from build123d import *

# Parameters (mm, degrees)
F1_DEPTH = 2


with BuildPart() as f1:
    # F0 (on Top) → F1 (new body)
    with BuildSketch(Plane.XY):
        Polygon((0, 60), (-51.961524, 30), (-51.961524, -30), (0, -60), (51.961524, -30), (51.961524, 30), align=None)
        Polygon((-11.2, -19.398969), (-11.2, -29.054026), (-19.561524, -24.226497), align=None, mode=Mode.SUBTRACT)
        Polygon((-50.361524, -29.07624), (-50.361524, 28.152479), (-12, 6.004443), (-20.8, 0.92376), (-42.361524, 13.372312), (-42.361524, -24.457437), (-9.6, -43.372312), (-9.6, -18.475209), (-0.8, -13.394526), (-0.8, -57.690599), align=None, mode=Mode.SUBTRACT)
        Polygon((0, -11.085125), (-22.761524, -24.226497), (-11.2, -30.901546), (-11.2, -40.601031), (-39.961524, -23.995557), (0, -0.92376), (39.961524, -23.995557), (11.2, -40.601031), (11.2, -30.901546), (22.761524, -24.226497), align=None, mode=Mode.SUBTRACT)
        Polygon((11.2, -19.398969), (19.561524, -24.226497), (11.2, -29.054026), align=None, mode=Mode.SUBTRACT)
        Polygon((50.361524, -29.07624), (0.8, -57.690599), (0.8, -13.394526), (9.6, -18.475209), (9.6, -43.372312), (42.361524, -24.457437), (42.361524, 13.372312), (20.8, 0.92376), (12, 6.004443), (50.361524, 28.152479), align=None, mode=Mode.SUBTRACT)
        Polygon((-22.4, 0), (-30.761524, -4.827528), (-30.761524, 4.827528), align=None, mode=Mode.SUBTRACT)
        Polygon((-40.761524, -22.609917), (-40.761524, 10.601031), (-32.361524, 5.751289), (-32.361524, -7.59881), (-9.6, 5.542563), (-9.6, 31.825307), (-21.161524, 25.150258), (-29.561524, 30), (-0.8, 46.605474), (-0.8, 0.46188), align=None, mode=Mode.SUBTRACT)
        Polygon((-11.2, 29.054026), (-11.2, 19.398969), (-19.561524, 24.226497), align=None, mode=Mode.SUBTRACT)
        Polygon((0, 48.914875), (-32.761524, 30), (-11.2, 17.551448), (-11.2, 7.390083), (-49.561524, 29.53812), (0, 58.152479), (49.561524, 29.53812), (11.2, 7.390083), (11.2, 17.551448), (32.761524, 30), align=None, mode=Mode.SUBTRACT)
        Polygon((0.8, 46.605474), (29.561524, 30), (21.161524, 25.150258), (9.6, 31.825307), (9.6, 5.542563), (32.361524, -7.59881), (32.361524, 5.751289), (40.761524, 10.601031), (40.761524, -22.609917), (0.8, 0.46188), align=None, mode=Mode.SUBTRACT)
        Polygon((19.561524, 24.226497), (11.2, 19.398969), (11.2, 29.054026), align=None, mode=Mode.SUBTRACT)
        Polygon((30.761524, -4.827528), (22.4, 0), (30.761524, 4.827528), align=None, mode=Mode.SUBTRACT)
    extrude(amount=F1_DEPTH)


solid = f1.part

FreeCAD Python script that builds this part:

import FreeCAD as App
import Part
import Sketcher
Q = App.Units.Quantity

doc = App.newDocument("Part")
params = doc.addObject("Spreadsheet::Sheet", "Params")
for row, (alias, value) in enumerate([
    ("sketch1_height", "60 mm"),
    ("sketch1_length", "60 mm"),
    ("pad1_length", "2 mm"),
], start=1):
    params.set(f"A{row}", alias)
    params.set(f"B{row}", "=" + value)
    params.setAlias(f"B{row}", alias)

body = doc.addObject("PartDesign::Body", "Body")

# Sketch on XY plane
sketch1 = body.newObject("Sketcher::SketchObject", "Sketch")
sketch1.AttachmentSupport = (doc.getObject("XY_Plane"), [""])
sketch1.MapMode = "FlatFace"
sketch1.addGeometry([
    Part.LineSegment(App.Vector(0, 60, 0), App.Vector(-52, 30, 0)),  # 0
    Part.LineSegment(App.Vector(-52, 30, 0), App.Vector(-52, -30, 0)),  # 1
    Part.LineSegment(App.Vector(-52, -30, 0), App.Vector(0, -60, 0)),  # 2
    Part.LineSegment(App.Vector(0, -60, 0), App.Vector(52, -30, 0)),  # 3
    Part.LineSegment(App.Vector(52, -30, 0), App.Vector(52, 30, 0)),  # 4
    Part.LineSegment(App.Vector(52, 30, 0), App.Vector(0, 60, 0)),  # 5
    Part.LineSegment(App.Vector(-1, -58, 0), App.Vector(-50, -29, 0)),  # 6
    Part.LineSegment(App.Vector(-50, -29, 0), App.Vector(-50, 28, 0)),  # 7
    Part.LineSegment(App.Vector(-50, 28, 0), App.Vector(-12, 6, 0)),  # 8
    Part.LineSegment(App.Vector(-12, 6, 0), App.Vector(-21, 1, 0)),  # 9
    Part.LineSegment(App.Vector(-21, 1, 0), App.Vector(-42, 13, 0)),  # 10
    Part.LineSegment(App.Vector(-42, 13, 0), App.Vector(-42, -24, 0)),  # 11
    Part.LineSegment(App.Vector(-42, -24, 0), App.Vector(-10, -43, 0)),  # 12
    Part.LineSegment(App.Vector(-10, -43, 0), App.Vector(-10, -18, 0)),  # 13
    Part.LineSegment(App.Vector(-10, -18, 0), App.Vector(-1, -13, 0)),  # 14
    Part.LineSegment(App.Vector(-1, -13, 0), App.Vector(-1, -58, 0)),  # 15
    Part.LineSegment(App.Vector(-31, 5, 0), App.Vector(-22, 0, 0)),  # 16
    Part.LineSegment(App.Vector(-22, 0, 0), App.Vector(-31, -5, 0)),  # 17
    Part.LineSegment(App.Vector(-31, -5, 0), App.Vector(-31, 5, 0)),  # 18
    Part.LineSegment(App.Vector(-20, -24, 0), App.Vector(-11, -19, 0)),  # 19
    Part.LineSegment(App.Vector(-11, -19, 0), App.Vector(-11, -29, 0)),  # 20
    Part.LineSegment(App.Vector(-11, -29, 0), App.Vector(-20, -24, 0)),  # 21
    Part.LineSegment(App.Vector(23, -24, 0), App.Vector(0, -11, 0)),  # 22
    Part.LineSegment(App.Vector(0, -11, 0), App.Vector(-23, -24, 0)),  # 23
    Part.LineSegment(App.Vector(-23, -24, 0), App.Vector(-11, -31, 0)),  # 24
    Part.LineSegment(App.Vector(-11, -31, 0), App.Vector(-11, -41, 0)),  # 25
    Part.LineSegment(App.Vector(-11, -41, 0), App.Vector(-40, -24, 0)),  # 26
    Part.LineSegment(App.Vector(-40, -24, 0), App.Vector(0, -1, 0)),  # 27
    Part.LineSegment(App.Vector(0, -1, 0), App.Vector(40, -24, 0)),  # 28
    Part.LineSegment(App.Vector(40, -24, 0), App.Vector(11, -41, 0)),  # 29
    Part.LineSegment(App.Vector(11, -41, 0), App.Vector(11, -31, 0)),  # 30
    Part.LineSegment(App.Vector(11, -31, 0), App.Vector(23, -24, 0)),  # 31
    Part.LineSegment(App.Vector(11, -29, 0), App.Vector(11, -19, 0)),  # 32
    Part.LineSegment(App.Vector(11, -19, 0), App.Vector(20, -24, 0)),  # 33
    Part.LineSegment(App.Vector(20, -24, 0), App.Vector(11, -29, 0)),  # 34
    Part.LineSegment(App.Vector(50, 28, 0), App.Vector(50, -29, 0)),  # 35
    Part.LineSegment(App.Vector(50, -29, 0), App.Vector(1, -58, 0)),  # 36
    Part.LineSegment(App.Vector(1, -58, 0), App.Vector(1, -13, 0)),  # 37
    Part.LineSegment(App.Vector(1, -13, 0), App.Vector(10, -18, 0)),  # 38
    Part.LineSegment(App.Vector(10, -18, 0), App.Vector(10, -43, 0)),  # 39
    Part.LineSegment(App.Vector(10, -43, 0), App.Vector(42, -24, 0)),  # 40
    Part.LineSegment(App.Vector(42, -24, 0), App.Vector(42, 13, 0)),  # 41
    Part.LineSegment(App.Vector(42, 13, 0), App.Vector(21, 1, 0)),  # 42
    Part.LineSegment(App.Vector(21, 1, 0), App.Vector(12, 6, 0)),  # 43
    Part.LineSegment(App.Vector(12, 6, 0), App.Vector(50, 28, 0)),  # 44
    Part.LineSegment(App.Vector(31, 5, 0), App.Vector(31, -5, 0)),  # 45
    Part.LineSegment(App.Vector(31, -5, 0), App.Vector(22, 0, 0)),  # 46
    Part.LineSegment(App.Vector(22, 0, 0), App.Vector(31, 5, 0)),  # 47
    Part.LineSegment(App.Vector(-1, 0, 0), App.Vector(-41, -23, 0)),  # 48
    Part.LineSegment(App.Vector(-41, -23, 0), App.Vector(-41, 11, 0)),  # 49
    Part.LineSegment(App.Vector(-41, 11, 0), App.Vector(-32, 6, 0)),  # 50
    Part.LineSegment(App.Vector(-32, 6, 0), App.Vector(-32, -8, 0)),  # 51
    Part.LineSegment(App.Vector(-32, -8, 0), App.Vector(-10, 6, 0)),  # 52
    Part.LineSegment(App.Vector(-10, 6, 0), App.Vector(-10, 32, 0)),  # 53
    Part.LineSegment(App.Vector(-10, 32, 0), App.Vector(-21, 25, 0)),  # 54
    Part.LineSegment(App.Vector(-21, 25, 0), App.Vector(-30, 30, 0)),  # 55
    Part.LineSegment(App.Vector(-30, 30, 0), App.Vector(-1, 47, 0)),  # 56
    Part.LineSegment(App.Vector(-1, 47, 0), App.Vector(-1, 0, 0)),  # 57
    Part.LineSegment(App.Vector(-20, 24, 0), App.Vector(-11, 29, 0)),  # 58
    Part.LineSegment(App.Vector(-11, 29, 0), App.Vector(-11, 19, 0)),  # 59
    Part.LineSegment(App.Vector(-11, 19, 0), App.Vector(-20, 24, 0)),  # 60
    Part.LineSegment(App.Vector(1, 0, 0), App.Vector(1, 47, 0)),  # 61
    Part.LineSegment(App.Vector(1, 47, 0), App.Vector(30, 30, 0)),  # 62
    Part.LineSegment(App.Vector(30, 30, 0), App.Vector(21, 25, 0)),  # 63
    Part.LineSegment(App.Vector(21, 25, 0), App.Vector(10, 32, 0)),  # 64
    Part.LineSegment(App.Vector(10, 32, 0), App.Vector(10, 6, 0)),  # 65
    Part.LineSegment(App.Vector(10, 6, 0), App.Vector(32, -8, 0)),  # 66
    Part.LineSegment(App.Vector(32, -8, 0), App.Vector(32, 6, 0)),  # 67
    Part.LineSegment(App.Vector(32, 6, 0), App.Vector(41, 11, 0)),  # 68
    Part.LineSegment(App.Vector(41, 11, 0), App.Vector(41, -23, 0)),  # 69
    Part.LineSegment(App.Vector(41, -23, 0), App.Vector(1, 0, 0)),  # 70
    Part.LineSegment(App.Vector(11, 29, 0), App.Vector(20, 24, 0)),  # 71
    Part.LineSegment(App.Vector(20, 24, 0), App.Vector(11, 19, 0)),  # 72
    Part.LineSegment(App.Vector(11, 19, 0), App.Vector(11, 29, 0)),  # 73
    Part.LineSegment(App.Vector(33, 30, 0), App.Vector(0, 49, 0)),  # 74
    Part.LineSegment(App.Vector(0, 49, 0), App.Vector(-33, 30, 0)),  # 75
    Part.LineSegment(App.Vector(-33, 30, 0), App.Vector(-11, 18, 0)),  # 76
    Part.LineSegment(App.Vector(-11, 18, 0), App.Vector(-11, 7, 0)),  # 77
    Part.LineSegment(App.Vector(-11, 7, 0), App.Vector(-50, 30, 0)),  # 78
    Part.LineSegment(App.Vector(-50, 30, 0), App.Vector(0, 58, 0)),  # 79
    Part.LineSegment(App.Vector(0, 58, 0), App.Vector(50, 30, 0)),  # 80
    Part.LineSegment(App.Vector(50, 30, 0), App.Vector(11, 7, 0)),  # 81
    Part.LineSegment(App.Vector(11, 7, 0), App.Vector(11, 18, 0)),  # 82
    Part.LineSegment(App.Vector(11, 18, 0), App.Vector(33, 30, 0)),  # 83
], False)
sketch1.addConstraint([
    Sketcher.Constraint("Coincident", 0, 2, 1, 1),
    Sketcher.Constraint("Coincident", 1, 2, 2, 1),
    Sketcher.Constraint("Coincident", 2, 2, 3, 1),
    Sketcher.Constraint("Coincident", 3, 2, 4, 1),
    Sketcher.Constraint("Coincident", 4, 2, 5, 1),
    Sketcher.Constraint("Coincident", 5, 2, 0, 1),
    Sketcher.Constraint("Coincident", 6, 2, 7, 1),
    Sketcher.Constraint("Coincident", 7, 2, 8, 1),
    Sketcher.Constraint("Coincident", 8, 2, 9, 1),
    Sketcher.Constraint("Coincident", 9, 2, 10, 1),
    Sketcher.Constraint("Coincident", 10, 2, 11, 1),
    Sketcher.Constraint("Coincident", 11, 2, 12, 1),
    Sketcher.Constraint("Coincident", 12, 2, 13, 1),
    Sketcher.Constraint("Coincident", 13, 2, 14, 1),
    Sketcher.Constraint("Coincident", 14, 2, 15, 1),
    Sketcher.Constraint("Coincident", 15, 2, 6, 1),
    Sketcher.Constraint("Coincident", 16, 2, 17, 1),
    Sketcher.Constraint("Coincident", 17, 2, 18, 1),
    Sketcher.Constraint("Coincident", 18, 2, 16, 1),
    Sketcher.Constraint("Coincident", 19, 2, 20, 1),
    Sketcher.Constraint("Coincident", 20, 2, 21, 1),
    Sketcher.Constraint("Coincident", 21, 2, 19, 1),
    Sketcher.Constraint("Coincident", 22, 2, 23, 1),
    Sketcher.Constraint("Coincident", 23, 2, 24, 1),
    Sketcher.Constraint("Coincident", 24, 2, 25, 1),
    Sketcher.Constraint("Coincident", 25, 2, 26, 1),
    Sketcher.Constraint("Coincident", 26, 2, 27, 1),
    Sketcher.Constraint("Coincident", 27, 2, 28, 1),
    Sketcher.Constraint("Coincident", 28, 2, 29, 1),
    Sketcher.Constraint("Coincident", 29, 2, 30, 1),
    Sketcher.Constraint("Coincident", 30, 2, 31, 1),
    Sketcher.Constraint("Coincident", 31, 2, 22, 1),
    Sketcher.Constraint("Coincident", 32, 2, 33, 1),
    Sketcher.Constraint("Coincident", 33, 2, 34, 1),
    Sketcher.Constraint("Coincident", 34, 2, 32, 1),
    Sketcher.Constraint("Coincident", 35, 2, 36, 1),
    Sketcher.Constraint("Coincident", 36, 2, 37, 1),
    Sketcher.Constraint("Coincident", 37, 2, 38, 1),
    Sketcher.Constraint("Coincident", 38, 2, 39, 1),
    Sketcher.Constraint("Coincident", 39, 2, 40, 1),
    Sketcher.Constraint("Coincident", 40, 2, 41, 1),
    Sketcher.Constraint("Coincident", 41, 2, 42, 1),
    Sketcher.Constraint("Coincident", 42, 2, 43, 1),
    Sketcher.Constraint("Coincident", 43, 2, 44, 1),
    Sketcher.Constraint("Coincident", 44, 2, 35, 1),
    Sketcher.Constraint("Coincident", 45, 2, 46, 1),
    Sketcher.Constraint("Coincident", 46, 2, 47, 1),
    Sketcher.Constraint("Coincident", 47, 2, 45, 1),
    Sketcher.Constraint("Coincident", 48, 2, 49, 1),
    Sketcher.Constraint("Coincident", 49, 2, 50, 1),
    Sketcher.Constraint("Coincident", 50, 2, 51, 1),
    Sketcher.Constraint("Coincident", 51, 2, 52, 1),
    Sketcher.Constraint("Coincident", 52, 2, 53, 1),
    Sketcher.Constraint("Coincident", 53, 2, 54, 1),
    Sketcher.Constraint("Coincident", 54, 2, 55, 1),
    Sketcher.Constraint("Coincident", 55, 2, 56, 1),
    Sketcher.Constraint("Coincident", 56, 2, 57, 1),
    Sketcher.Constraint("Coincident", 57, 2, 48, 1),
    Sketcher.Constraint("Coincident", 58, 2, 59, 1),
    Sketcher.Constraint("Coincident", 59, 2, 60, 1),
    Sketcher.Constraint("Coincident", 60, 2, 58, 1),
    Sketcher.Constraint("Coincident", 61, 2, 62, 1),
    Sketcher.Constraint("Coincident", 62, 2, 63, 1),
    Sketcher.Constraint("Coincident", 63, 2, 64, 1),
    Sketcher.Constraint("Coincident", 64, 2, 65, 1),
    Sketcher.Constraint("Coincident", 65, 2, 66, 1),
    Sketcher.Constraint("Coincident", 66, 2, 67, 1),
    Sketcher.Constraint("Coincident", 67, 2, 68, 1),
    Sketcher.Constraint("Coincident", 68, 2, 69, 1),
    Sketcher.Constraint("Coincident", 69, 2, 70, 1),
    Sketcher.Constraint("Coincident", 70, 2, 61, 1),
    Sketcher.Constraint("Coincident", 71, 2, 72, 1),
    Sketcher.Constraint("Coincident", 72, 2, 73, 1),
    Sketcher.Constraint("Coincident", 73, 2, 71, 1),
    Sketcher.Constraint("Coincident", 74, 2, 75, 1),
    Sketcher.Constraint("Coincident", 75, 2, 76, 1),
    Sketcher.Constraint("Coincident", 76, 2, 77, 1),
    Sketcher.Constraint("Coincident", 77, 2, 78, 1),
    Sketcher.Constraint("Coincident", 78, 2, 79, 1),
    Sketcher.Constraint("Coincident", 79, 2, 80, 1),
    Sketcher.Constraint("Coincident", 80, 2, 81, 1),
    Sketcher.Constraint("Coincident", 81, 2, 82, 1),
    Sketcher.Constraint("Coincident", 82, 2, 83, 1),
    Sketcher.Constraint("Coincident", 83, 2, 74, 1),
    Sketcher.Constraint("Vertical", 1),
    Sketcher.Constraint("Vertical", 4),
    Sketcher.Constraint("Vertical", 7),
    Sketcher.Constraint("Vertical", 11),
    Sketcher.Constraint("Vertical", 13),
    Sketcher.Constraint("Vertical", 15),
    Sketcher.Constraint("Vertical", 18),
    Sketcher.Constraint("Vertical", 20),
    Sketcher.Constraint("Vertical", 25),
    Sketcher.Constraint("Vertical", 30),
    Sketcher.Constraint("Vertical", 32),
    Sketcher.Constraint("Vertical", 35),
    Sketcher.Constraint("Vertical", 37),
    Sketcher.Constraint("Vertical", 39),
    Sketcher.Constraint("Vertical", 41),
    Sketcher.Constraint("Vertical", 45),
    Sketcher.Constraint("Vertical", 49),
    Sketcher.Constraint("Vertical", 51),
    Sketcher.Constraint("Vertical", 53),
    Sketcher.Constraint("Vertical", 57),
    Sketcher.Constraint("Vertical", 59),
    Sketcher.Constraint("Vertical", 61),
    Sketcher.Constraint("Vertical", 65),
    Sketcher.Constraint("Vertical", 67),
    Sketcher.Constraint("Vertical", 69),
    Sketcher.Constraint("Vertical", 73),
    Sketcher.Constraint("Vertical", 77),
    Sketcher.Constraint("Vertical", 82),
    Sketcher.Constraint("Symmetric", 0, 2, 3, 2, -1, 1),
    Sketcher.Constraint("Symmetric", 2, 2, 5, 2, -1, 1),
    Sketcher.Constraint("Symmetric", 18, 2, 45, 2, -1, 1),
    Sketcher.Constraint("Symmetric", 16, 2, 46, 2, -1, 1),
    Sketcher.Constraint("Symmetric", 34, 2, 58, 2, -1, 1),
    Sketcher.Constraint("Symmetric", 33, 2, 60, 2, -1, 1),
    Sketcher.Constraint("Symmetric", 21, 2, 71, 2, -1, 1),
    Sketcher.Constraint("Symmetric", 19, 2, 72, 2, -1, 1),
    Sketcher.Constraint("Symmetric", 26, 2, 28, 2, -2),
    Sketcher.Constraint("Symmetric", 25, 2, 29, 2, -2),
    Sketcher.Constraint("Symmetric", 23, 2, 31, 2, -2),
    Sketcher.Constraint("Symmetric", 19, 2, 32, 2, -2),
    Sketcher.Constraint("Symmetric", 21, 2, 33, 2, -2),
    Sketcher.Constraint("Symmetric", 6, 2, 35, 2, -2),
    Sketcher.Constraint("Symmetric", 15, 2, 36, 2, -2),
    Sketcher.Constraint("Symmetric", 13, 2, 38, 2, -2),
    Sketcher.Constraint("Symmetric", 11, 2, 40, 2, -2),
    Sketcher.Constraint("Symmetric", 9, 2, 42, 2, -2),
    Sketcher.Constraint("Symmetric", 8, 2, 43, 2, -2),
    Sketcher.Constraint("Symmetric", 56, 2, 61, 2, -2),
    Sketcher.Constraint("Symmetric", 55, 2, 62, 2, -2),
    Sketcher.Constraint("Symmetric", 54, 2, 63, 2, -2),
    Sketcher.Constraint("Symmetric", 53, 2, 64, 2, -2),
    Sketcher.Constraint("Symmetric", 51, 2, 66, 2, -2),
    Sketcher.Constraint("Symmetric", 49, 2, 68, 2, -2),
    Sketcher.Constraint("Symmetric", 78, 2, 80, 2, -2),
    Sketcher.Constraint("Symmetric", 77, 2, 81, 2, -2),
    Sketcher.Constraint("Symmetric", 75, 2, 83, 2, -2),
    Sketcher.Constraint("PointOnObject", 2, 2, -2),
    Sketcher.Constraint("PointOnObject", 16, 2, -1),
    Sketcher.Constraint("PointOnObject", 22, 2, -2),
    Sketcher.Constraint("PointOnObject", 27, 2, -2),
    Sketcher.Constraint("PointOnObject", 74, 2, -2),
    Sketcher.Constraint("PointOnObject", 79, 2, -2),
    Sketcher.Constraint("Parallel", 2, 5),
    Sketcher.Constraint("Parallel", 5, 6),
    Sketcher.Constraint("Parallel", 6, 8),
    Sketcher.Constraint("Parallel", 3, 9),
    Sketcher.Constraint("Parallel", 8, 10),
    Sketcher.Constraint("Parallel", 10, 12),
    Sketcher.Constraint("Parallel", 9, 14),
    Sketcher.Constraint("Parallel", 12, 16),
    Sketcher.Constraint("Parallel", 14, 17),
    Sketcher.Constraint("Parallel", 17, 19),
    Sketcher.Constraint("Parallel", 16, 21),
    Sketcher.Constraint("Parallel", 21, 22),
    Sketcher.Constraint("Parallel", 19, 23),
    Sketcher.Constraint("Parallel", 22, 24),
    Sketcher.Constraint("Parallel", 24, 26),
    Sketcher.Constraint("Parallel", 23, 27),
    Sketcher.Constraint("Parallel", 29, 31),
    Sketcher.Constraint("Parallel", 31, 34),
    Sketcher.Constraint("Parallel", 33, 38),
    Sketcher.Constraint("Parallel", 36, 40),
    Sketcher.Constraint("Parallel", 40, 42),
    Sketcher.Constraint("Parallel", 42, 44),
    Sketcher.Constraint("Parallel", 44, 47),
    Sketcher.Constraint("Parallel", 47, 48),
    Sketcher.Constraint("Parallel", 46, 50),
    Sketcher.Constraint("Parallel", 48, 52),
    Sketcher.Constraint("Parallel", 52, 54),
    Sketcher.Constraint("Parallel", 50, 55),
    Sketcher.Constraint("Parallel", 54, 56),
    Sketcher.Constraint("Parallel", 55, 60),
    Sketcher.Constraint("Parallel", 64, 66),
    Sketcher.Constraint("Parallel", 63, 68),
    Sketcher.Constraint("Parallel", 66, 70),
    Sketcher.Constraint("Parallel", 70, 71),
    Sketcher.Constraint("Parallel", 71, 74),
    Sketcher.Constraint("Parallel", 74, 76),
    Sketcher.Constraint("Parallel", 76, 78),
    Sketcher.Constraint("Parallel", 75, 79),
    Sketcher.Constraint("Parallel", 81, 83),
    Sketcher.Constraint("Horizontal", 21, 2, 23, 2),
    Sketcher.Constraint("Horizontal", 4, 2, 55, 2),
    Sketcher.Constraint("Horizontal", 48, 2, 69, 2),
    Sketcher.Constraint("Horizontal", 62, 2, 75, 2),
    Sketcher.Constraint("Vertical", 20, 2, 24, 2),
    Sketcher.Constraint("Vertical", 13, 2, 52, 2),
    Sketcher.Constraint("Vertical", 15, 2, 56, 2),
    Sketcher.Constraint("Vertical", 59, 2, 76, 2),
    Sketcher.Constraint("Equal", 18, 20),
    Sketcher.Constraint("Equal", 9, 14),
    Sketcher.Constraint("Equal", 28, 48),
    Sketcher.Constraint("Equal", 23, 52),
    Sketcher.Constraint("Equal", 31, 54),
    Sketcher.Constraint("Equal", 50, 55),
    Sketcher.Constraint("Equal", 40, 74),
    Sketcher.Constraint("Equal", 42, 76),
    Sketcher.Constraint("Equal", 44, 78),
    Sketcher.Constraint("DistanceY", 1, 2, 1, 1, Q("60 mm")),
    Sketcher.Constraint("Angle", 0, Q("-150 deg")),
    Sketcher.Constraint("Distance", 0, Q("60 mm")),
    Sketcher.Constraint("DistanceX", 8, 2, -1, 1, Q("12 mm")),
    Sketcher.Constraint("DistanceX", 9, 2, -1, 1, Q("20.8 mm")),
    Sketcher.Constraint("DistanceX", 12, 2, -1, 1, Q("9.6 mm")),
    Sketcher.Constraint("DistanceX", 16, 2, -1, 1, Q("22.4 mm")),
    Sketcher.Constraint("DistanceY", 51, 2, 51, 1, Q("13.350099 mm")),
    Sketcher.Constraint("DistanceY", 7, 1, 7, 2, Q("57.228719 mm")),
    Sketcher.Constraint("DistanceY", 11, 2, 11, 1, Q("37.829749 mm")),
    Sketcher.Constraint("DistanceY", 49, 1, 49, 2, Q("33.210948 mm")),
    Sketcher.Constraint("DistanceY", 15, 2, -1, 1, Q("57.690599 mm")),
    Sketcher.Constraint("Distance", 6, Q("57.228718 mm")),
    Sketcher.Constraint("Distance", 12, Q("37.82975 mm")),
    Sketcher.Constraint("DistanceY", 13, 1, 13, 2, Q("24.897103 mm")),
    Sketcher.Constraint("DistanceY", 18, 1, 18, 2, Q("9.655056 mm")),
    Sketcher.Constraint("DistanceY", 25, 2, 25, 1, Q("9.699485 mm")),
    Sketcher.Constraint("DistanceY", 53, 1, 53, 2, Q("26.282744 mm")),
    Sketcher.Constraint("DistanceY", 77, 2, 77, 1, Q("10.161365 mm")),
    Sketcher.Constraint("DistanceY", 19, 2, -1, 1, Q("19.398969 mm")),
    Sketcher.Constraint("DistanceY", 25, 2, -1, 1, Q("40.601031 mm")),
    Sketcher.Constraint("DistanceY", 27, 2, -1, 1, Q("0.92376 mm")),
])
sketch1.setExpression("Constraints[202]", "Params.sketch1_height")
sketch1.setExpression("Constraints[204]", "Params.sketch1_length")
pad1 = body.newObject("PartDesign::Pad", "Pad")
pad1.Profile = sketch1
pad1.setExpression("Length", "Params.pad1_length")

doc.recompute()
